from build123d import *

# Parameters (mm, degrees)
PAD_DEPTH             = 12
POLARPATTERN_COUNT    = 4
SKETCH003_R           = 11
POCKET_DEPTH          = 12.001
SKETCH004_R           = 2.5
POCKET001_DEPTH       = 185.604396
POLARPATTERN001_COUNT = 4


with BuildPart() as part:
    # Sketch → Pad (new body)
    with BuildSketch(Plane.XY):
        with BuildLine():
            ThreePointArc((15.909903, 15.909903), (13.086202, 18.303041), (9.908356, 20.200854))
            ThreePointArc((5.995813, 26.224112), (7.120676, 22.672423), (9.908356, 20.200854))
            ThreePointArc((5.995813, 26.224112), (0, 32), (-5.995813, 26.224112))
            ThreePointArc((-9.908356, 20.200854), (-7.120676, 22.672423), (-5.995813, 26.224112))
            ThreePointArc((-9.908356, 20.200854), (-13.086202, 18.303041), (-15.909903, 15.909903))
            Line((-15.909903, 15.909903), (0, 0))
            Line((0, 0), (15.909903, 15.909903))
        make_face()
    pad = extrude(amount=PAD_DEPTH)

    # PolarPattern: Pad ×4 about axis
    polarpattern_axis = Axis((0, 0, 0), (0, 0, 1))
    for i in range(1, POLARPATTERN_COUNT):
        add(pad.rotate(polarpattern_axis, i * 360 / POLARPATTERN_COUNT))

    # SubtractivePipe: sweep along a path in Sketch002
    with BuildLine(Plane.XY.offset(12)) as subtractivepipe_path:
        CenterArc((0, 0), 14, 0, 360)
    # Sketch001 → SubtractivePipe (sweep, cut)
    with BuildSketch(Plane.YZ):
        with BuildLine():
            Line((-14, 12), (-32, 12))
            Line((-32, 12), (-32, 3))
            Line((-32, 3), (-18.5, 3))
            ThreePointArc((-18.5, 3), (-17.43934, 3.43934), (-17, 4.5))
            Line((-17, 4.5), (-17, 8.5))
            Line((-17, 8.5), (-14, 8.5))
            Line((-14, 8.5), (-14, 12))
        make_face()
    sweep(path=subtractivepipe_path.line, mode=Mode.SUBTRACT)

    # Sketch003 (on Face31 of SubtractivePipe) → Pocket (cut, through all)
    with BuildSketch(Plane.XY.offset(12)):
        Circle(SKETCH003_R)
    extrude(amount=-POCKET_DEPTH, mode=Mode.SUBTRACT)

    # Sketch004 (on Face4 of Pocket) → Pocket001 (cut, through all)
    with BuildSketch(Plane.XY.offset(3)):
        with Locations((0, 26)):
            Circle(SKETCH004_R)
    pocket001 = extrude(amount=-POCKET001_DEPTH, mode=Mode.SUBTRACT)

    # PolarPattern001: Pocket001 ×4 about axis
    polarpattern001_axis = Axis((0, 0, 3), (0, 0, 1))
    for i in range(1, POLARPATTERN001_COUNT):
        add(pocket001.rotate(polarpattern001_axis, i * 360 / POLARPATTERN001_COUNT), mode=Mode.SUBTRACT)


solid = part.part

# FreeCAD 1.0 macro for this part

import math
import FreeCAD as App
import Part
import Sketcher

V = App.Vector

doc = App.newDocument("Part")
params = doc.addObject("Spreadsheet::Sheet", "Params")
for row, (alias, value) in enumerate([
    ("sketch1_radius", "6 mm"),
    ("sketch1_length", "22.500001 mm"),
    ("pad1_length", "12 mm"),
    ("sketch2_radius", "1.500001 mm"),
    ("sketch2_width", "18 mm"),
    ("sketch2_width2", "3 mm"),
    ("sketch2_height", "9 mm"),
    ("sketch2_height2", "4 mm"),
    ("sketch3_diameter", "28 mm"),
    ("sketch4_diameter", "22 mm"),
    ("sketch5_diameter", "5 mm"),
], start=1):
    params.set(f"A{row}", alias)
    params.set(f"B{row}", "=" + value)
    params.setAlias(f"B{row}", alias)

body = doc.addObject("PartDesign::Body", "Body")

# Sketch on XY plane
sketch1 = body.newObject("Sketcher::SketchObject", "Sketch")
sketch1.AttachmentSupport = (doc.getObject("XY_Plane"), [""])
sketch1.MapMode = "FlatFace"
sketch1.addGeometry(Part.ArcOfCircle(Part.Circle(V(0, 0, 0), V(0, 0, 1), 23), math.radians(45), math.radians(63.87)), False)
sketch1.addGeometry(Part.ArcOfCircle(Part.Circle(V(13, 26, 0), V(0, 0, 1), 7), math.radians(-178), math.radians(-116)), False)
sketch1.addGeometry(Part.ArcOfCircle(Part.Circle(V(0, 26, 0), V(0, 0, 1), 6), math.radians(2), math.radians(178)), False)
sketch1.addGeometry(Part.ArcOfCircle(Part.Circle(V(-13, 26, 0), V(0, 0, 1), 7), math.radians(-64), math.radians(-2)), False)
sketch1.addGeometry(Part.ArcOfCircle(Part.Circle(V(0, 0, 0), V(0, 0, 1), 23), math.radians(116.13), math.radians(135)), False)
sketch1.addGeometry(Part.LineSegment(V(-16, 16, 0), V(0, 0, 0)), False)
sketch1.addGeometry(Part.LineSegment(V(0, 0, 0), V(16, 16, 0)), False)
sketch1.addConstraint(Sketcher.Constraint("Coincident", 0, 2, 1, 2))
sketch1.addConstraint(Sketcher.Constraint("Tangent", 1, 1, 2, 1))
sketch1.addConstraint(Sketcher.Constraint("Tangent", 2, 2, 3, 2))
sketch1.addConstraint(Sketcher.Constraint("Coincident", 3, 1, 4, 1))
sketch1.addConstraint(Sketcher.Constraint("Coincident", 4, 2, 5, 1))
sketch1.addConstraint(Sketcher.Constraint("Coincident", 5, 2, 6, 1))
sketch1.addConstraint(Sketcher.Constraint("Coincident", 6, 2, 0, 1))
sketch1.addConstraint(Sketcher.Constraint("Coincident", 5, 2, -1, 1))
sketch1.addConstraint(Sketcher.Constraint("Equal", 1, 3))
sketch1.addConstraint(Sketcher.Constraint("Equal", 0, 4))
sketch1.addConstraint(Sketcher.Constraint("Symmetric", 1, 3, 3, 3, -2))
sketch1.addConstraint(Sketcher.Constraint("Symmetric", 4, 2, 6, 2, -2))
sketch1.addConstraint(Sketcher.Constraint("Perpendicular", 5, 6))
sketch1.addConstraint(Sketcher.Constraint("Horizontal", 0, 2, 3, 1))
sketch1.addConstraint(Sketcher.Constraint("Radius", 2, 6.0))
sketch1.addConstraint(Sketcher.Constraint("DistanceY", -1, 1, 2, 3, 26.0))
sketch1.addConstraint(Sketcher.Constraint("Distance", 5, 22.500001))
sketch1.addConstraint(Sketcher.Constraint("Radius", 0, 22.500051))
sketch1.addConstraint(Sketcher.Constraint("Radius", 1, 6.999997))
sketch1.addConstraint(Sketcher.Constraint("DistanceX", 3, 3, 1, 3, 25.98185))
sketch1.addConstraint(Sketcher.Constraint("DistanceX", 0, 2, 1, 3, 3.082569))
sketch1.setExpression("Constraints[14]", "Params.sketch1_radius")
sketch1.setExpression("Constraints[16]", "Params.sketch1_length")
pad1 = body.newObject("PartDesign::Pad", "Pad")
pad1.Profile = sketch1
pad1.setExpression("Length", "Params.pad1_length")
doc.recompute()

polarpattern = body.newObject("PartDesign::PolarPattern", "PolarPattern")
polarpattern.Originals = [pad1]
polarpattern.Axis = (doc.getObject("Z_Axis"), [""])
polarpattern.Angle = 360
polarpattern.Occurrences = 4
body.Tip = polarpattern

# Sketch on YZ plane
sketch2 = body.newObject("Sketcher::SketchObject", "Sketch001")
sketch2.AttachmentSupport = (doc.getObject("YZ_Plane"), [""])
sketch2.MapMode = "FlatFace"
sketch2.addGeometry(Part.LineSegment(V(-14, 12, 0), V(-32, 12, 0)), False)
sketch2.addGeometry(Part.LineSegment(V(-32, 12, 0), V(-32, 3, 0)), False)
sketch2.addGeometry(Part.LineSegment(V(-32, 3, 0), V(-18.5, 3, 0)), False)
sketch2.addGeometry(Part.ArcOfCircle(Part.Circle(V(-18.5, 4.5, 0), V(0, 0, 1), 1.5), math.radians(-90), math.radians(0)), False)
sketch2.addGeometry(Part.LineSegment(V(-17, 4.5, 0), V(-17, 8.5, 0)), False)
sketch2.addGeometry(Part.LineSegment(V(-17, 8.5, 0), V(-14, 8.5, 0)), False)
sketch2.addGeometry(Part.LineSegment(V(-14, 8.5, 0), V(-14, 12, 0)), False)
sketch2.addConstraint(Sketcher.Constraint("Coincident", 0, 2, 1, 1))
sketch2.addConstraint(Sketcher.Constraint("Coincident", 1, 2, 2, 1))
sketch2.addConstraint(Sketcher.Constraint("Tangent", 2, 2, 3, 1))
sketch2.addConstraint(Sketcher.Constraint("Tangent", 3, 2, 4, 1))
sketch2.addConstraint(Sketcher.Constraint("Coincident", 4, 2, 5, 1))
sketch2.addConstraint(Sketcher.Constraint("Coincident", 5, 2, 6, 1))
sketch2.addConstraint(Sketcher.Constraint("Coincident", 6, 2, 0, 1))
sketch2.addConstraint(Sketcher.Constraint("Horizontal", 0))
sketch2.addConstraint(Sketcher.Constraint("Vertical", 1))
sketch2.addConstraint(Sketcher.Constraint("Horizontal", 2))
sketch2.addConstraint(Sketcher.Constraint("Vertical", 4))
sketch2.addConstraint(Sketcher.Constraint("Horizontal", 5))
sketch2.addConstraint(Sketcher.Constraint("Vertical", 6))
sketch2.addConstraint(Sketcher.Constraint("Radius", 3, 1.500001))
sketch2.addConstraint(Sketcher.Constraint("DistanceX", 0, 2, 0, 1, 18.0))
sketch2.addConstraint(Sketcher.Constraint("DistanceX", 5, 1, 5, 2, 3.0))
sketch2.addConstraint(Sketcher.Constraint("DistanceY", 1, 2, 1, 1, 9.0))
sketch2.addConstraint(Sketcher.Constraint("DistanceY", 4, 1, 4, 2, 4.0))
sketch2.addConstraint(Sketcher.Constraint("DistanceX", 0, 2, -1, 1, 32.0))
sketch2.addConstraint(Sketcher.Constraint("DistanceY", -1, 1, 0, 2, 12.0))
sketch2.setExpression("Constraints[13]", "Params.sketch2_radius")
sketch2.setExpression("Constraints[14]", "Params.sketch2_width")
sketch2.setExpression("Constraints[15]", "Params.sketch2_width2")
sketch2.setExpression("Constraints[16]", "Params.sketch2_height")
sketch2.setExpression("Constraints[17]", "Params.sketch2_height2")

# Sketch on XY plane
sketch3 = body.newObject("Sketcher::SketchObject", "Sketch002")
sketch3.AttachmentSupport = (doc.getObject("XY_Plane"), [""])
sketch3.MapMode = "FlatFace"
sketch3.AttachmentOffset = App.Placement(V(0, 0, 12), App.Rotation())
sketch3.addGeometry(Part.Circle(V(0, 0, 0), V(0, 0, 1), 14), False)
sketch3.addConstraint(Sketcher.Constraint("Coincident", 0, 3, -1, 1))
sketch3.addConstraint(Sketcher.Constraint("Diameter", 0, 28.0))
sketch3.setExpression("Constraints[1]", "Params.sketch3_diameter")
doc.recompute()

subtractivepipe = body.newObject("PartDesign::SubtractivePipe", "SubtractivePipe")
subtractivepipe.Profile = sketch2
subtractivepipe.Spine = (sketch3, ["Edge1"])

# Sketch on XY plane
sketch4 = body.newObject("Sketcher::SketchObject", "Sketch003")
sketch4.AttachmentSupport = (doc.getObject("XY_Plane"), [""])
sketch4.MapMode = "FlatFace"
sketch4.AttachmentOffset = App.Placement(V(0, 0, 12), App.Rotation())
sketch4.addGeometry(Part.Circle(V(0, 0, 0), V(0, 0, 1), 11), False)
sketch4.addConstraint(Sketcher.Constraint("Coincident", 0, 3, -1, 1))
sketch4.addConstraint(Sketcher.Constraint("Diameter", 0, 22.0))
sketch4.setExpression("Constraints[1]", "Params.sketch4_diameter")
pocket1 = body.newObject("PartDesign::Pocket", "Pocket")
pocket1.Profile = sketch4
pocket1.Type = "ThroughAll"

# Sketch on XY plane
sketch5 = body.newObject("Sketcher::SketchObject", "Sketch004")
sketch5.AttachmentSupport = (doc.getObject("XY_Plane"), [""])
sketch5.MapMode = "FlatFace"
sketch5.AttachmentOffset = App.Placement(V(0, 0, 3), App.Rotation())
sketch5.addGeometry(Part.Circle(V(0, 26, 0), V(0, 0, 1), 2.5), False)
sketch5.addConstraint(Sketcher.Constraint("PointOnObject", 0, 3, -2))
sketch5.addConstraint(Sketcher.Constraint("Diameter", 0, 5.0))
sketch5.addConstraint(Sketcher.Constraint("DistanceY", -1, 1, 0, 3, 26.0))
sketch5.setExpression("Constraints[1]", "Params.sketch5_diameter")
pocket2 = body.newObject("PartDesign::Pocket", "Pocket001")
pocket2.Profile = sketch5
pocket2.Type = "ThroughAll"
doc.recompute()

polarpattern2 = body.newObject("PartDesign::PolarPattern", "PolarPattern001")
polarpattern2.Originals = [pocket2]
polarpattern2.Axis = (doc.getObject("Z_Axis"), [""])
polarpattern2.Angle = 360
polarpattern2.Occurrences = 4
body.Tip = polarpattern2

doc.recompute()
